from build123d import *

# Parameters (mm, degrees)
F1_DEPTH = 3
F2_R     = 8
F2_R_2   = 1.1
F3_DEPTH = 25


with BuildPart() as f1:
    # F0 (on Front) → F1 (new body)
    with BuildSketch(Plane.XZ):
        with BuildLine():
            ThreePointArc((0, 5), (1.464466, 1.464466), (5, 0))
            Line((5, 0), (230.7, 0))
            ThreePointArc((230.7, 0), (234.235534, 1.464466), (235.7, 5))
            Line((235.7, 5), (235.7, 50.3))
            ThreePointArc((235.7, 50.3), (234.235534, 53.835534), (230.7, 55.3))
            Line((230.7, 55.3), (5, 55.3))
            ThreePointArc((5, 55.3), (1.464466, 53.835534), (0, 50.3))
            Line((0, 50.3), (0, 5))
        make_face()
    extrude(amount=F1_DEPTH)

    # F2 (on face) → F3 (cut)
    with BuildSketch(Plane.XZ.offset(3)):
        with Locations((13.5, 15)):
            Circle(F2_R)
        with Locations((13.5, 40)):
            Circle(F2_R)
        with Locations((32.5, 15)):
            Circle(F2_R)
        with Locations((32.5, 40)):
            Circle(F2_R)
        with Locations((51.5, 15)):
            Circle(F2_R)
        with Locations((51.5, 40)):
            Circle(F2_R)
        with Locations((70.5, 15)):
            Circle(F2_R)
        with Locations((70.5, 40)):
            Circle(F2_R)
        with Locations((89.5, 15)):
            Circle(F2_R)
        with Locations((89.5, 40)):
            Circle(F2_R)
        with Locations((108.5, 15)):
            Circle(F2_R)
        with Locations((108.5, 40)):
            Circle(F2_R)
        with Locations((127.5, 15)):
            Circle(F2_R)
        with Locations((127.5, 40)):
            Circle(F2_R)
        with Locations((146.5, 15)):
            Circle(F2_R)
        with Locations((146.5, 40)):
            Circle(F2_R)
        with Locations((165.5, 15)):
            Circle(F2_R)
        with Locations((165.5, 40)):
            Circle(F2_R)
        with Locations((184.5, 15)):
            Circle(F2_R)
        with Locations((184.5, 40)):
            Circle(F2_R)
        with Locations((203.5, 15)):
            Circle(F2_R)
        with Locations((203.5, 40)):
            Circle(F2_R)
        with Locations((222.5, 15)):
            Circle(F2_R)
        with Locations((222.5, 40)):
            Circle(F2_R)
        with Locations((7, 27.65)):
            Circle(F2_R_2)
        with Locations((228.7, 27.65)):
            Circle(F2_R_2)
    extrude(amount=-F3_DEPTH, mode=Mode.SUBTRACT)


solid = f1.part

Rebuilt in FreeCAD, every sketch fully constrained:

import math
import FreeCAD as App
import Part
import Sketcher

V = App.Vector
Q = App.Units.Quantity

doc = App.newDocument("Part")
body = doc.addObject("PartDesign::Body", "Body")

# Sketch on XZ plane
sketch1 = body.newObject("Sketcher::SketchObject", "Sketch")
sketch1.AttachmentSupport = (doc.getObject("XZ_Plane"), [""])
sketch1.MapMode = "FlatFace"
sketch1.addGeometry([
    Part.ArcOfCircle(Part.Circle(V(5, 5, 0), V(0, 0, 1), 5), math.radians(179.999996), math.radians(270.000004)),  # 0
    Part.LineSegment(V(5, 0, 0), V(230.7, 0, 0)),  # 1
    Part.ArcOfCircle(Part.Circle(V(230.7, 5, 0), V(0, 0, 1), 5), math.radians(-90.000004), math.radians(0.000004)),  # 2
    Part.LineSegment(V(235.7, 5, 0), V(235.7, 50.3, 0)),  # 3
    Part.ArcOfCircle(Part.Circle(V(230.7, 50.3, 0), V(0, 0, 1), 5), math.radians(-0.000004), math.radians(90.000004)),  # 4
    Part.LineSegment(V(230.7, 55.3, 0), V(5, 55.3, 0)),  # 5
    Part.ArcOfCircle(Part.Circle(V(5, 50.3, 0), V(0, 0, 1), 5), math.radians(89.999996), math.radians(180.000004)),  # 6
    Part.LineSegment(V(0, 50.3, 0), V(0, 5, 0)),  # 7
], False)
sketch1.addConstraint([
    Sketcher.Constraint("Tangent", 0, 2, 1, 1),
    Sketcher.Constraint("Tangent", 1, 2, 2, 1),
    Sketcher.Constraint("Tangent", 2, 2, 3, 1),
    Sketcher.Constraint("Tangent", 3, 2, 4, 1),
    Sketcher.Constraint("Tangent", 4, 2, 5, 1),
    Sketcher.Constraint("Tangent", 5, 2, 6, 1),
    Sketcher.Constraint("Tangent", 6, 2, 7, 1),
    Sketcher.Constraint("Tangent", 7, 2, 0, 1),
    Sketcher.Constraint("Horizontal", 1),
    Sketcher.Constraint("Vertical", 3),
    Sketcher.Constraint("Horizontal", 5),
    Sketcher.Constraint("Vertical", 7),
    Sketcher.Constraint("Equal", 0, 2),
    Sketcher.Constraint("Equal", 2, 4),
    Sketcher.Constraint("Equal", 4, 6),
    Sketcher.Constraint("PointOnObject", 0, 2, -1),
    Sketcher.Constraint("PointOnObject", 6, 2, -2),
    Sketcher.Constraint("Radius", 0, Q("5 mm")),
    Sketcher.Constraint("DistanceX", 1, 1, 1, 2, Q("225.7 mm")),
    Sketcher.Constraint("DistanceY", 3, 1, 3, 2, Q("45.3 mm")),
])
pad1 = body.newObject("PartDesign::Pad", "Pad")
pad1.Profile = sketch1
pad1.Length = 3

# Sketch on XZ plane
sketch2 = body.newObject("Sketcher::SketchObject", "Sketch001")
sketch2.AttachmentSupport = (doc.getObject("XZ_Plane"), [""])
sketch2.MapMode = "FlatFace"
sketch2.AttachmentOffset = App.Placement(V(0, 0, 3), App.Rotation())
sketch2.addGeometry([
    Part.Circle(V(13.5, 15, 0), V(0, 0, 1), 8),  # 0
    Part.Circle(V(13.5, 40, 0), V(0, 0, 1), 8),  # 1
    Part.Circle(V(32.5, 15, 0), V(0, 0, 1), 8),  # 2
    Part.Circle(V(32.5, 40, 0), V(0, 0, 1), 8),  # 3
    Part.Circle(V(51.5, 15, 0), V(0, 0, 1), 8),  # 4
    Part.Circle(V(51.5, 40, 0), V(0, 0, 1), 8),  # 5
    Part.Circle(V(70.5, 15, 0), V(0, 0, 1), 8),  # 6
    Part.Circle(V(70.5, 40, 0), V(0, 0, 1), 8),  # 7
    Part.Circle(V(89.5, 15, 0), V(0, 0, 1), 8),  # 8
    Part.Circle(V(89.5, 40, 0), V(0, 0, 1), 8),  # 9
    Part.Circle(V(108.5, 15, 0), V(0, 0, 1), 8),  # 10
    Part.Circle(V(108.5, 40, 0), V(0, 0, 1), 8),  # 11
    Part.Circle(V(127.5, 15, 0), V(0, 0, 1), 8),  # 12
    Part.Circle(V(127.5, 40, 0), V(0, 0, 1), 8),  # 13
    Part.Circle(V(146.5, 15, 0), V(0, 0, 1), 8),  # 14
    Part.Circle(V(146.5, 40, 0), V(0, 0, 1), 8),  # 15
    Part.Circle(V(165.5, 15, 0), V(0, 0, 1), 8),  # 16
    Part.Circle(V(165.5, 40, 0), V(0, 0, 1), 8),  # 17
    Part.Circle(V(184.5, 15, 0), V(0, 0, 1), 8),  # 18
    Part.Circle(V(184.5, 40, 0), V(0, 0, 1), 8),  # 19
    Part.Circle(V(203.5, 15, 0), V(0, 0, 1), 8),  # 20
    Part.Circle(V(203.5, 40, 0), V(0, 0, 1), 8),  # 21
    Part.Circle(V(222.5, 15, 0), V(0, 0, 1), 8),  # 22
    Part.Circle(V(222.5, 40, 0), V(0, 0, 1), 8),  # 23
    Part.Circle(V(7, 27.65, 0), V(0, 0, 1), 1.1),  # 24
    Part.Circle(V(228.7, 27.65, 0), V(0, 0, 1), 1.1),  # 25
], False)
sketch2.addConstraint([
    Sketcher.Constraint("Equal", 0, 1),
    Sketcher.Constraint("Equal", 1, 2),
    Sketcher.Constraint("Equal", 2, 3),
    Sketcher.Constraint("Equal", 3, 4),
    Sketcher.Constraint("Equal", 4, 5),
    Sketcher.Constraint("Equal", 5, 6),
    Sketcher.Constraint("Equal", 6, 7),
    Sketcher.Constraint("Equal", 7, 8),
    Sketcher.Constraint("Equal", 8, 9),
    Sketcher.Constraint("Equal", 9, 10),
    Sketcher.Constraint("Equal", 10, 11),
    Sketcher.Constraint("Equal", 11, 12),
    Sketcher.Constraint("Equal", 12, 13),
    Sketcher.Constraint("Equal", 13, 14),
    Sketcher.Constraint("Equal", 14, 15),
    Sketcher.Constraint("Equal", 15, 16),
    Sketcher.Constraint("Equal", 16, 17),
    Sketcher.Constraint("Equal", 17, 18),
    Sketcher.Constraint("Equal", 18, 19),
    Sketcher.Constraint("Equal", 19, 20),
    Sketcher.Constraint("Equal", 20, 21),
    Sketcher.Constraint("Equal", 21, 22),
    Sketcher.Constraint("Equal", 22, 23),
    Sketcher.Constraint("Equal", 24, 25),
    Sketcher.Constraint("Horizontal", 0, 3, 2, 3),
    Sketcher.Constraint("Horizontal", 1, 3, 3, 3),
    Sketcher.Constraint("Horizontal", 2, 3, 4, 3),
    Sketcher.Constraint("Horizontal", 3, 3, 5, 3),
    Sketcher.Constraint("Horizontal", 4, 3, 6, 3),
    Sketcher.Constraint("Horizontal", 5, 3, 7, 3),
    Sketcher.Constraint("Horizontal", 6, 3, 8, 3),
    Sketcher.Constraint("Horizontal", 7, 3, 9, 3),
    Sketcher.Constraint("Horizontal", 8, 3, 10, 3),
    Sketcher.Constraint("Horizontal", 9, 3, 11, 3),
    Sketcher.Constraint("Horizontal", 10, 3, 12, 3),
    Sketcher.Constraint("Horizontal", 11, 3, 13, 3),
    Sketcher.Constraint("Horizontal", 12, 3, 14, 3),
    Sketcher.Constraint("Horizontal", 13, 3, 15, 3),
    Sketcher.Constraint("Horizontal", 14, 3, 16, 3),
    Sketcher.Constraint("Horizontal", 15, 3, 17, 3),
    Sketcher.Constraint("Horizontal", 16, 3, 18, 3),
    Sketcher.Constraint("Horizontal", 17, 3, 19, 3),
    Sketcher.Constraint("Horizontal", 18, 3, 20, 3),
    Sketcher.Constraint("Horizontal", 19, 3, 21, 3),
    Sketcher.Constraint("Horizontal", 20, 3, 22, 3),
    Sketcher.Constraint("Horizontal", 21, 3, 23, 3),
    Sketcher.Constraint("Horizontal", 24, 3, 25, 3),
    Sketcher.Constraint("Vertical", 0, 3, 1, 3),
    Sketcher.Constraint("Vertical", 2, 3, 3, 3),
    Sketcher.Constraint("Vertical", 4, 3, 5, 3),
    Sketcher.Constraint("Vertical", 6, 3, 7, 3),
    Sketcher.Constraint("Vertical", 8, 3, 9, 3),
    Sketcher.Constraint("Vertical", 10, 3, 11, 3),
    Sketcher.Constraint("Vertical", 12, 3, 13, 3),
    Sketcher.Constraint("Vertical", 14, 3, 15, 3),
    Sketcher.Constraint("Vertical", 16, 3, 17, 3),
    Sketcher.Constraint("Vertical", 18, 3, 19, 3),
    Sketcher.Constraint("Vertical", 20, 3, 21, 3),
    Sketcher.Constraint("Vertical", 22, 3, 23, 3),
    Sketcher.Constraint("Diameter", 0, Q("16 mm")),
    Sketcher.Constraint("Diameter", 24, Q("2.2 mm")),
    Sketcher.Constraint("DistanceY", -1, 1, 0, 3, Q("15 mm")),
    Sketcher.Constraint("DistanceY", -1, 1, 1, 3, Q("40 mm")),
    Sketcher.Constraint("DistanceX", -1, 1, 24, 3, Q("7 mm")),
    Sketcher.Constraint("DistanceX", 0, 3, 2, 3, Q("19 mm")),
    Sketcher.Constraint("DistanceX", 2, 3, 4, 3, Q("19 mm")),
    Sketcher.Constraint("DistanceX", 4, 3, 6, 3, Q("19 mm")),
    Sketcher.Constraint("DistanceX", 6, 3, 8, 3, Q("19 mm")),
    Sketcher.Constraint("DistanceX", 8, 3, 10, 3, Q("19 mm")),
    Sketcher.Constraint("DistanceX", 10, 3, 12, 3, Q("19 mm")),
    Sketcher.Constraint("DistanceX", 12, 3, 14, 3, Q("19 mm")),
    Sketcher.Constraint("DistanceX", 14, 3, 16, 3, Q("19 mm")),
    Sketcher.Constraint("DistanceX", 16, 3, 18, 3, Q("19 mm")),
    Sketcher.Constraint("DistanceX", 18, 3, 20, 3, Q("19 mm")),
    Sketcher.Constraint("DistanceX", 20, 3, 22, 3, Q("19 mm")),
    Sketcher.Constraint("DistanceX", -1, 1, 0, 3, Q("13.5 mm")),
    Sketcher.Constraint("DistanceX", -1, 1, 25, 3, Q("228.7 mm")),
    Sketcher.Constraint("DistanceY", -1, 1, 24, 3, Q("27.65 mm")),
])
pocket1 = body.newObject("PartDesign::Pocket", "Pocket")
pocket1.Profile = sketch2
pocket1.Length = 25

doc.recompute()
